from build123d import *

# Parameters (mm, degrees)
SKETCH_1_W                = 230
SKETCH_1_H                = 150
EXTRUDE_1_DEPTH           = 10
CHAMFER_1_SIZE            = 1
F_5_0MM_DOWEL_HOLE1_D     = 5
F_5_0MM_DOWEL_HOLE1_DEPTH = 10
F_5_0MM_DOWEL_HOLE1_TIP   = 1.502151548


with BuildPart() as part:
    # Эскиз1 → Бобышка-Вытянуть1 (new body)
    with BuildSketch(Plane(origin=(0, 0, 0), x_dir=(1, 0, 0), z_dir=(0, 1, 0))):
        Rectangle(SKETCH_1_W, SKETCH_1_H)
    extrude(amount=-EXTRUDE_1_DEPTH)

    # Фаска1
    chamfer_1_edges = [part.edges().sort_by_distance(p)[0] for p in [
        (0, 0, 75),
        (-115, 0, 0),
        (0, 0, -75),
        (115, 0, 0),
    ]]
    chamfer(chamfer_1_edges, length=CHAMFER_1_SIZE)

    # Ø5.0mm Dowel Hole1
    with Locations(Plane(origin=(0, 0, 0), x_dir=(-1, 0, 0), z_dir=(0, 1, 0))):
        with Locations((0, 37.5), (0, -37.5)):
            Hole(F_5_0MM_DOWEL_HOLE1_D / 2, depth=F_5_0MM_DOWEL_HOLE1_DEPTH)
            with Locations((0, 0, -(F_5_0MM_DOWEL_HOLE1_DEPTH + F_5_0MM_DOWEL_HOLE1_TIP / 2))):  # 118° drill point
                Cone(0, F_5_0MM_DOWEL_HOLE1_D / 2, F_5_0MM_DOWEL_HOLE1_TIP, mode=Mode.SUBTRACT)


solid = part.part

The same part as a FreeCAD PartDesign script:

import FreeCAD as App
import Part
import Sketcher
from FreeCAD import Vector


def edges_at(feature, points):
    """Names of the edges that pass closest to the given points."""
    edges = feature.Shape.Edges
    near = lambda p: min(range(len(edges)), key=lambda i: edges[i].distToShape(Part.Vertex(*p))[0])
    return sorted({f"Edge{near(p) + 1}" for p in points})

doc = App.newDocument("Part")
body = doc.addObject("PartDesign::Body", "Body")

sketch1 = doc.addObject("Sketcher::SketchObject", "Sketch")
body.addObject(sketch1)
sketch1.AttachmentSupport = (doc.XZ_Plane, [""])
sketch1.MapMode = "FlatFace"
sketch1.addGeometry(Part.LineSegment(Vector(-115, -75, 0), Vector(-115, 75, 0)), False)
sketch1.addGeometry(Part.LineSegment(Vector(-115, 75, 0), Vector(115, 75, 0)), False)
sketch1.addGeometry(Part.LineSegment(Vector(115, 75, 0), Vector(115, -75, 0)), False)
sketch1.addGeometry(Part.LineSegment(Vector(115, -75, 0), Vector(-115, -75, 0)), False)
sketch1.addConstraint(Sketcher.Constraint("Coincident", 0, 2, 1, 1))
sketch1.addConstraint(Sketcher.Constraint("Coincident", 1, 2, 2, 1))
sketch1.addConstraint(Sketcher.Constraint("Coincident", 2, 2, 3, 1))
sketch1.addConstraint(Sketcher.Constraint("Coincident", 3, 2, 0, 1))
sketch1.addConstraint(Sketcher.Constraint("Vertical", 0))
sketch1.addConstraint(Sketcher.Constraint("Horizontal", 1))
sketch1.addConstraint(Sketcher.Constraint("Vertical", 2))
sketch1.addConstraint(Sketcher.Constraint("Horizontal", 3))
sketch1.addConstraint(Sketcher.Constraint("Symmetric", 0, 2, 2, 2, -1, 1))
sketch1.addConstraint(Sketcher.Constraint("DistanceX", 1, 1, 1, 2, 230.0))
sketch1.addConstraint(Sketcher.Constraint("DistanceY", 0, 1, 0, 2, 150.0))
pad1 = doc.addObject("PartDesign::Pad", "Pad")
body.addObject(pad1)
pad1.Profile = sketch1
pad1.Length = 10
doc.recompute()

chamfer = doc.addObject("PartDesign::Chamfer", "Chamfer")
body.addObject(chamfer)
chamfer.Base = (pad1, edges_at(pad1, [
    (0, 0, 75),
    (-115, 0, 0),
    (0, 0, -75),
    (115, 0, 0),
]))
chamfer.Size = 1

sketch2 = doc.addObject("Sketcher::SketchObject", "Sketch001")
body.addObject(sketch2)
sketch2.AttachmentSupport = (doc.XZ_Plane, [""])
sketch2.MapMode = "FlatFace"
sketch2.addGeometry(Part.Circle(Vector(0, 37.5, 0), Vector(0, 0, 1), 2.5), False)
sketch2.addGeometry(Part.Circle(Vector(0, -37.5, 0), Vector(0, 0, 1), 2.5), False)
sketch2.addConstraint(Sketcher.Constraint("Equal", 0, 1))
sketch2.addConstraint(Sketcher.Constraint("Symmetric", 0, 3, 1, 3, -1, 1))
sketch2.addConstraint(Sketcher.Constraint("PointOnObject", 0, 3, -2))
sketch2.addConstraint(Sketcher.Constraint("Diameter", 0, 5.0))
sketch2.addConstraint(Sketcher.Constraint("DistanceY", 1, 3, 0, 3, 75.0))
doc.recompute()
hole = doc.addObject("PartDesign::Hole", "Hole")
body.addObject(hole)
hole.Profile = sketch2
hole.ThreadType = "None"
hole.Diameter = 5
hole.DepthType = "Dimension"
hole.Depth = 10
hole.DrillPoint = "Angled"
hole.DrillPointAngle = 118
hole.Reversed = True

doc.recompute()
